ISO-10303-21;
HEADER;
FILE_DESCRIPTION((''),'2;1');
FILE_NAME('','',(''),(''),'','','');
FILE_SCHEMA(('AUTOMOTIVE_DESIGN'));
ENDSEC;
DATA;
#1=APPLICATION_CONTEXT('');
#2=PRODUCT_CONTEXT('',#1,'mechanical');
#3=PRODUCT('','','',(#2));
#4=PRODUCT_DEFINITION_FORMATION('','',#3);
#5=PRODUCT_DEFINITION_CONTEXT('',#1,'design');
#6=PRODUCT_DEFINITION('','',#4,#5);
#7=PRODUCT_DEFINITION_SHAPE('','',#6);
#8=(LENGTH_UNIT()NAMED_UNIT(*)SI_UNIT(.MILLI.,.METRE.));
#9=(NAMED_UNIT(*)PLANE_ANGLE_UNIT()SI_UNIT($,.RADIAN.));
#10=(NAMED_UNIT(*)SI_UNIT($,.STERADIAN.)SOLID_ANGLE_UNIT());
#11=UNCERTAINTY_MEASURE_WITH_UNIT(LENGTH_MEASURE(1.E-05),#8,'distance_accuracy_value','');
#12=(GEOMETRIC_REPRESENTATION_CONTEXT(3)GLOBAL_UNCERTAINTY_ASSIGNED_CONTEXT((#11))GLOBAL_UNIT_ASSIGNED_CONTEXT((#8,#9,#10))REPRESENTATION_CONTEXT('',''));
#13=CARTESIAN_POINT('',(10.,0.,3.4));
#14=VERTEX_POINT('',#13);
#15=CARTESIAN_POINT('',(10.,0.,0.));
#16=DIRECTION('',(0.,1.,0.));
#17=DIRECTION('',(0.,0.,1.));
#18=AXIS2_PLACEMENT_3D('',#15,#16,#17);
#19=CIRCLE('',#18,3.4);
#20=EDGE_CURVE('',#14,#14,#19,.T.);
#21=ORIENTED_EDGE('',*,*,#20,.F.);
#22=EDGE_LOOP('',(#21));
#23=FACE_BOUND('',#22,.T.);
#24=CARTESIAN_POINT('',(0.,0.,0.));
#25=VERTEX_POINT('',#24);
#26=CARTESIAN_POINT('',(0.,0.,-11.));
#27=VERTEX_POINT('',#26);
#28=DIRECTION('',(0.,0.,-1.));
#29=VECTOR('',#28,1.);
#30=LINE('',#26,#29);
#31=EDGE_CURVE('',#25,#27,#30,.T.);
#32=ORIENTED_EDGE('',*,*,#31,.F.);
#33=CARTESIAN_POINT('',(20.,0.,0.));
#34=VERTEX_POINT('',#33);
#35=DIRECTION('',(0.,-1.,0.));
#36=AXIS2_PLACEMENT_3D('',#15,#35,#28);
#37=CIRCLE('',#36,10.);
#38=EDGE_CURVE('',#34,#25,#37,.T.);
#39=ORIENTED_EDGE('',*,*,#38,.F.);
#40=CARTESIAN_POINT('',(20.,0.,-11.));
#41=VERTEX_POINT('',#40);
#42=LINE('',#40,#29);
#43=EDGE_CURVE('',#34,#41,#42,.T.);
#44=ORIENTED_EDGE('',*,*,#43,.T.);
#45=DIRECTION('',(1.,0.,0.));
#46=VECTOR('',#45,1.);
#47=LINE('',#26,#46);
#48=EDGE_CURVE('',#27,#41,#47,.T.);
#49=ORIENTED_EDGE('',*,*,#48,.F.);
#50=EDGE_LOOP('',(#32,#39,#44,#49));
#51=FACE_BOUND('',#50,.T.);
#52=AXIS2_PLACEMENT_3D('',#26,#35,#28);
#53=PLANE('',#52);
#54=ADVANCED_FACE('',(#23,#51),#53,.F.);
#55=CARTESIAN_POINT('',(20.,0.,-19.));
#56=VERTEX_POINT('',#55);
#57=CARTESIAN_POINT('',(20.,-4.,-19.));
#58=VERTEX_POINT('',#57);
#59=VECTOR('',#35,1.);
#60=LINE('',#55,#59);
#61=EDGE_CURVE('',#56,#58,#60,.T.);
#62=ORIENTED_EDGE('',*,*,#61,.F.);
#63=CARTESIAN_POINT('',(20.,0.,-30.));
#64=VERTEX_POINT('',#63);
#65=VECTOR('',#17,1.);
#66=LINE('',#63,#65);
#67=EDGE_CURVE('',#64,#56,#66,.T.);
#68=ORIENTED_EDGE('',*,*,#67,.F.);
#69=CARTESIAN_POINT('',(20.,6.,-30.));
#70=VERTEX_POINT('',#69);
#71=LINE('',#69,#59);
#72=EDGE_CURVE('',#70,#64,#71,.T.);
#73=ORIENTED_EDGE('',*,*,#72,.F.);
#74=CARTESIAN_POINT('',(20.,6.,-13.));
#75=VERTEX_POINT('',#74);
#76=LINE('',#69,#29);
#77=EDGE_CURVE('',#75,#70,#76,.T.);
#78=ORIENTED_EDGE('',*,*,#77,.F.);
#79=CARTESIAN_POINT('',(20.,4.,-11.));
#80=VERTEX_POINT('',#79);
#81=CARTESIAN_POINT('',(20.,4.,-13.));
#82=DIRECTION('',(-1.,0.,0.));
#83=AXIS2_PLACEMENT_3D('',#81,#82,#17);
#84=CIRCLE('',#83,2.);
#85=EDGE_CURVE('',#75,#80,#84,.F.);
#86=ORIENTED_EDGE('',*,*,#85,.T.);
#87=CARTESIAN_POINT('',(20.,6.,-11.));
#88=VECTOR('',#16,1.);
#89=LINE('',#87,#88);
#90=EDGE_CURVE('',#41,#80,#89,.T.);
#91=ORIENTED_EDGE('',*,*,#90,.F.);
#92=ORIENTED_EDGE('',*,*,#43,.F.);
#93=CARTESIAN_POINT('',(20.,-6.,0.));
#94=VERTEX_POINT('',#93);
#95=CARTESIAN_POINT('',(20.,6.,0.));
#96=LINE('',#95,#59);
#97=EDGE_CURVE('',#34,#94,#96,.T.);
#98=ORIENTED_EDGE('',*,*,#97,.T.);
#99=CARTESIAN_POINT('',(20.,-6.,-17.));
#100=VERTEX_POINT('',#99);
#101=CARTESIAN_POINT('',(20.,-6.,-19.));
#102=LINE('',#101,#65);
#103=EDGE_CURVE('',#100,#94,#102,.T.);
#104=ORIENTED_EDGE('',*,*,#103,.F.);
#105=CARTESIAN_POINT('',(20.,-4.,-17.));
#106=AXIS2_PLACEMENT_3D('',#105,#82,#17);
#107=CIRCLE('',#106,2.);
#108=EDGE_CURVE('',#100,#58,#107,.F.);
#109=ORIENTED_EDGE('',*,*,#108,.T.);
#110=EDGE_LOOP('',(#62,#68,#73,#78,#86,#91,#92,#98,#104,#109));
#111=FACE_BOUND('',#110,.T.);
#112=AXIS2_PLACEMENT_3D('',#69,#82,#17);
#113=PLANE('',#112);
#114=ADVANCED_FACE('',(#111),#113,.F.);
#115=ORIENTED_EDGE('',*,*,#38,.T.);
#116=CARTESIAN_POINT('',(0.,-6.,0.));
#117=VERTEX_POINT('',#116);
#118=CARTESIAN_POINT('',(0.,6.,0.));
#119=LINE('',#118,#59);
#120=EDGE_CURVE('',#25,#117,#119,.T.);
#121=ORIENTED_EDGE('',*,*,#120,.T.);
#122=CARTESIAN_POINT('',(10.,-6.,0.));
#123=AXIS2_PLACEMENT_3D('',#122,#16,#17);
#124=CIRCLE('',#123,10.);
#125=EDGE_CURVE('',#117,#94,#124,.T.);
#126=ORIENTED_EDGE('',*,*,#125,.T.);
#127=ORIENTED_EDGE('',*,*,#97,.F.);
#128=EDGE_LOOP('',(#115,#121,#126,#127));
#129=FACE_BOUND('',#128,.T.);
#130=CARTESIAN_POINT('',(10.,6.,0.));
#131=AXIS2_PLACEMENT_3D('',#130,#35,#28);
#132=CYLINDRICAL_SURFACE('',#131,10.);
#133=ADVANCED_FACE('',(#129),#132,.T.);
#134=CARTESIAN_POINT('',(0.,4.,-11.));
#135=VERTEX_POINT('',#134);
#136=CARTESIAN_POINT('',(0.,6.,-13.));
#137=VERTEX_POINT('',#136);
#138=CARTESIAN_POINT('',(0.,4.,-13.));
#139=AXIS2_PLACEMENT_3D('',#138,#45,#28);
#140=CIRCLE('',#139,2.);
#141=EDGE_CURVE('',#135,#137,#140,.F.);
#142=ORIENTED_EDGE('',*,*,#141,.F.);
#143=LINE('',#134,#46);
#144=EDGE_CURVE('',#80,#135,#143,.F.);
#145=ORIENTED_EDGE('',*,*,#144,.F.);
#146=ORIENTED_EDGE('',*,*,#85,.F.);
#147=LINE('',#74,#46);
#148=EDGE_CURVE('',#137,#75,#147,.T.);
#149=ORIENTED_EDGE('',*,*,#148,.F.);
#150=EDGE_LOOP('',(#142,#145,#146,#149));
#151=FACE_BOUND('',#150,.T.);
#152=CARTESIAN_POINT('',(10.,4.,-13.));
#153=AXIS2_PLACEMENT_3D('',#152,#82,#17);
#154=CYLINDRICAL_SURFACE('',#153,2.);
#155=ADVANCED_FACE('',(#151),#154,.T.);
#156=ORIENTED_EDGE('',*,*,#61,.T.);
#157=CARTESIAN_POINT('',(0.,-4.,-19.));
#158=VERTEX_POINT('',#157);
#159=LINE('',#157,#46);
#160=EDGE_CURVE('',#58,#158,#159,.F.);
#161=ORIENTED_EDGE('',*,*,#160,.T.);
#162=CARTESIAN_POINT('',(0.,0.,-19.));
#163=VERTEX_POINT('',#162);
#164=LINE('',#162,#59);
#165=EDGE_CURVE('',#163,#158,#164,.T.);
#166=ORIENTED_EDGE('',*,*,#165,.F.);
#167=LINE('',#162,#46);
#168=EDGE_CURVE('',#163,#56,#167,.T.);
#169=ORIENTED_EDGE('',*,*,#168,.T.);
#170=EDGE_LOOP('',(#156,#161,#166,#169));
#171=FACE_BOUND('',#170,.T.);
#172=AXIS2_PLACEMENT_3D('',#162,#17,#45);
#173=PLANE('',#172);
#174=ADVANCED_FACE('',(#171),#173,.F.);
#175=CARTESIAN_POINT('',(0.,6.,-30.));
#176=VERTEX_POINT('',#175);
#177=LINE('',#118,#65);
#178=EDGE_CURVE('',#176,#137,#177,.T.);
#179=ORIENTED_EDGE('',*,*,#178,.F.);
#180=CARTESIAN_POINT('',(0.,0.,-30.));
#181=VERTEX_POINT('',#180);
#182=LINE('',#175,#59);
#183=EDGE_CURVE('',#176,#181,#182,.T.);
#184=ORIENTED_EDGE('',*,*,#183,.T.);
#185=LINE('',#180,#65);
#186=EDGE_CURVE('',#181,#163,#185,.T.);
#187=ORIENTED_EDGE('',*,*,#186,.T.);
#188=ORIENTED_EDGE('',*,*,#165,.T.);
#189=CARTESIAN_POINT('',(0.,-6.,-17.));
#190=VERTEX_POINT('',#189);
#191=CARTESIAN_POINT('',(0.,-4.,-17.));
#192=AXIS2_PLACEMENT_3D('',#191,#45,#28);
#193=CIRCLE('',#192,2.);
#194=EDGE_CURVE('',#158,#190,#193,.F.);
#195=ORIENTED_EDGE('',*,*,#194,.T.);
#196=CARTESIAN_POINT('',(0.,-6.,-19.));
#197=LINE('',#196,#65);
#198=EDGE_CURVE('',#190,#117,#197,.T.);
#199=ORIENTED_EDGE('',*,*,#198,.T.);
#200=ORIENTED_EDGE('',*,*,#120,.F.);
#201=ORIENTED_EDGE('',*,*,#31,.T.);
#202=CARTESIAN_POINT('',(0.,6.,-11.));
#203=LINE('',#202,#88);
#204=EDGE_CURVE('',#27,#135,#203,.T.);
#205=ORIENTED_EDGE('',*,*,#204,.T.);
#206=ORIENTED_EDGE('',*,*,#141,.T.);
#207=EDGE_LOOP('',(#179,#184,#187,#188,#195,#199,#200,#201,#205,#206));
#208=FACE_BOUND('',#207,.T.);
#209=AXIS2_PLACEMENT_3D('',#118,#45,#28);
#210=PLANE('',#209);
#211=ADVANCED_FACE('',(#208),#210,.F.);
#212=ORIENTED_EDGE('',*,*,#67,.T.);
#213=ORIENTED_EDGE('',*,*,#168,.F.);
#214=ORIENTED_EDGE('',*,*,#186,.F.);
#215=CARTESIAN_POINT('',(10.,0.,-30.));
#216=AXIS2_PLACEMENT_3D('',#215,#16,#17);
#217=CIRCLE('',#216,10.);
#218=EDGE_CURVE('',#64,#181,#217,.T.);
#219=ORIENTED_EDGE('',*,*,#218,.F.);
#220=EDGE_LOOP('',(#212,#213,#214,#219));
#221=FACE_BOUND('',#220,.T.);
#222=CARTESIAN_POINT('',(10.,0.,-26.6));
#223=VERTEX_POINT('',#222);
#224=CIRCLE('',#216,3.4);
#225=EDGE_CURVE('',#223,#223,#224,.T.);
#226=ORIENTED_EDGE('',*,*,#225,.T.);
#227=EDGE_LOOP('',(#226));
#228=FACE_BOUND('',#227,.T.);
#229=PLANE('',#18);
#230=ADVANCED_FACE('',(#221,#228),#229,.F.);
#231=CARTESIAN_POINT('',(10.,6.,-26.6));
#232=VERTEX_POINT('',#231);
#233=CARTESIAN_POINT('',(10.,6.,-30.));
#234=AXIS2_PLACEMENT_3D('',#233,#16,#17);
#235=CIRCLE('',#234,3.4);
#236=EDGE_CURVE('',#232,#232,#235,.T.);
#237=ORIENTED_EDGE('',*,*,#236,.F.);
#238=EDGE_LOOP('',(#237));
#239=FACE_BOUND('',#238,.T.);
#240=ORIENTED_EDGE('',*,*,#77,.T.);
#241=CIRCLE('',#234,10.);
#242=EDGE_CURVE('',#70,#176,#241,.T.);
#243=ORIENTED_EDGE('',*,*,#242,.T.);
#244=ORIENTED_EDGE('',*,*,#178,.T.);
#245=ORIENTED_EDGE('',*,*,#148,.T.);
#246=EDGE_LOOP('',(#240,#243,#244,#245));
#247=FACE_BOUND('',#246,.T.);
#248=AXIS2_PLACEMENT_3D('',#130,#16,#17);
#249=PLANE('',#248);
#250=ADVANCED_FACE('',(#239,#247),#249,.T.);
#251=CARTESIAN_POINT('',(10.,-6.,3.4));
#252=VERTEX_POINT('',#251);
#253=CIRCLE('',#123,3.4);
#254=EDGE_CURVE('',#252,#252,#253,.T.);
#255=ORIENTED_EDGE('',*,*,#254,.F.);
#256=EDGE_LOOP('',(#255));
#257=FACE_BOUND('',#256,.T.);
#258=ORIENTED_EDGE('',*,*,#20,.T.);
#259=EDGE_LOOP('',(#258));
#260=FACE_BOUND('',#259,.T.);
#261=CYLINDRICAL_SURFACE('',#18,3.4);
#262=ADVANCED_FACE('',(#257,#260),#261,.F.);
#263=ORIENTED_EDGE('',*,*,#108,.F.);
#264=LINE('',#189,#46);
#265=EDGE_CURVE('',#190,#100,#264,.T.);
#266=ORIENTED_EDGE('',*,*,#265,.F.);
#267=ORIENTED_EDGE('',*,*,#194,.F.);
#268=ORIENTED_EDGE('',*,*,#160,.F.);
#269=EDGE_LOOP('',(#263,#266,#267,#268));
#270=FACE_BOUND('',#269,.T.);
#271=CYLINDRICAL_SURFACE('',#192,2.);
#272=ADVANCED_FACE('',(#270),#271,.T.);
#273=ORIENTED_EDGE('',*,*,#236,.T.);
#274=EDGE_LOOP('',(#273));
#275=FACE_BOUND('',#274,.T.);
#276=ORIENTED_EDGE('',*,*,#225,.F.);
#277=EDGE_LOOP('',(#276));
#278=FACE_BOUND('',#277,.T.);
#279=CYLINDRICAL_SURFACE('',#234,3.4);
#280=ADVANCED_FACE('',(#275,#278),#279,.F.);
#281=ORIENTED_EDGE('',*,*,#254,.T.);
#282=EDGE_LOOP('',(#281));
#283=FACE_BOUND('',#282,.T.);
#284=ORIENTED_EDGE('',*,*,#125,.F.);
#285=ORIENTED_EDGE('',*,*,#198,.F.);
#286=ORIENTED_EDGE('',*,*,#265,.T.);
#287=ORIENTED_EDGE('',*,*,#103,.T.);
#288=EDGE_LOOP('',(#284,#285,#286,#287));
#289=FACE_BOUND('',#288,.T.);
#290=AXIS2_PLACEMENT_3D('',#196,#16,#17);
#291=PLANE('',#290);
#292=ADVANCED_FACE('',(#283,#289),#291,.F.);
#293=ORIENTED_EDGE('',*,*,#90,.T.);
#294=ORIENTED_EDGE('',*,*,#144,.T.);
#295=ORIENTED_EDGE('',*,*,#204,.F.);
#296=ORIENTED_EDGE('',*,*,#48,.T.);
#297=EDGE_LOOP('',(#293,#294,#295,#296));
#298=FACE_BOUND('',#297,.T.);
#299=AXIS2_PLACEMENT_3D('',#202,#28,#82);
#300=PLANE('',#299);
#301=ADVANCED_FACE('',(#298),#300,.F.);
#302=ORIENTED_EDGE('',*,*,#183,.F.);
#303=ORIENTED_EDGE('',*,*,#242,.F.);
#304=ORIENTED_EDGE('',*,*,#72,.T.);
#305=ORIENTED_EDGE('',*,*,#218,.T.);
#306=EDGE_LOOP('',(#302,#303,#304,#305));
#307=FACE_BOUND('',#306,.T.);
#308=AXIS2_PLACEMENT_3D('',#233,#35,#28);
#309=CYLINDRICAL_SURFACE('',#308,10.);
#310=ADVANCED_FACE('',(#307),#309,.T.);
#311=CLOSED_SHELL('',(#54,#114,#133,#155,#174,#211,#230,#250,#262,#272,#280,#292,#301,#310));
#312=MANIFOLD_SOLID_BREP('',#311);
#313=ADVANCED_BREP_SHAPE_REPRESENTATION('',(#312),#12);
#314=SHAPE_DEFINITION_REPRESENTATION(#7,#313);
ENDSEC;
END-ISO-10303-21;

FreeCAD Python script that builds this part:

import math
import FreeCAD as App
import Part
import Sketcher
Q = App.Units.Quantity


def edges_at(feature, points):
    """Names of the edges that pass closest to the given points."""
    edges = feature.Shape.Edges
    near = lambda p: min(range(len(edges)), key=lambda i: edges[i].distToShape(Part.Vertex(*p))[0])
    return sorted({f"Edge{near(p) + 1}" for p in points})

doc = App.newDocument("Part")
body = doc.addObject("PartDesign::Body", "Body")

sketch1 = body.newObject("Sketcher::SketchObject", "Sketch")
sketch1.AttachmentSupport = (doc.getObject("XZ_Plane"), [""])
sketch1.MapMode = "FlatFace"
sketch1.addGeometry([
    Part.LineSegment(App.Vector(0, -30, 0), App.Vector(0, 0, 0)),
    Part.ArcOfCircle(Part.Circle(App.Vector(10, 0, 0), App.Vector(0, 0, 1), 10), math.radians(0), math.radians(180)),
    Part.LineSegment(App.Vector(20, 0, 0), App.Vector(20, -30, 0)),
    Part.ArcOfCircle(Part.Circle(App.Vector(10, -30, 0), App.Vector(0, 0, 1), 10), math.radians(180), math.radians(360)),
], False)
sketch1.addConstraint([
    Sketcher.Constraint("Tangent", 0, 2, 1, 2),
    Sketcher.Constraint("Tangent", 1, 1, 2, 1),
    Sketcher.Constraint("Tangent", 2, 2, 3, 2),
    Sketcher.Constraint("Tangent", 3, 1, 0, 1),
    Sketcher.Constraint("Vertical", 0),
    Sketcher.Constraint("Vertical", 2),
    Sketcher.Constraint("Coincident", 0, 2, -1, 1),
    Sketcher.Constraint("Radius", 1, Q("10 mm")),
    Sketcher.Constraint("DistanceY", 0, 1, 0, 2, Q("30 mm")),
])
pad1 = body.newObject("PartDesign::Pad", "Pad")
pad1.Profile = sketch1
pad1.Length = 6
pad1.Reversed = True

sketch2 = body.newObject("Sketcher::SketchObject", "Sketch001")
sketch2.AttachmentSupport = (doc.getObject("XZ_Plane"), [""])
sketch2.MapMode = "FlatFace"
sketch2.addGeometry([
    Part.LineSegment(App.Vector(0, -30, 0), App.Vector(20, -30, 0)),
    Part.LineSegment(App.Vector(20, -30, 0), App.Vector(20, 0, 0)),
    Part.ArcOfCircle(Part.Circle(App.Vector(10, 0, 0), App.Vector(0, 0, 1), 10), math.radians(0), math.radians(180)),
    Part.LineSegment(App.Vector(0, 0, 0), App.Vector(0, -30, 0)),
], False)
sketch2.addConstraint([
    Sketcher.Constraint("Coincident", 0, 2, 1, 1),
    Sketcher.Constraint("Tangent", 1, 2, 2, 1),
    Sketcher.Constraint("Tangent", 2, 2, 3, 1),
    Sketcher.Constraint("Coincident", 3, 2, 0, 1),
    Sketcher.Constraint("Horizontal", 0),
    Sketcher.Constraint("Vertical", 1),
    Sketcher.Constraint("Vertical", 3),
    Sketcher.Constraint("Coincident", 2, 2, -1, 1),
    Sketcher.Constraint("Radius", 2, Q("10 mm")),
    Sketcher.Constraint("DistanceY", 1, 1, 1, 2, Q("30 mm")),
])
pad2 = body.newObject("PartDesign::Pad", "Pad001")
pad2.Profile = sketch2
pad2.Length = 12

sketch3 = body.newObject("Sketcher::SketchObject", "Sketch002")
sketch3.AttachmentSupport = (doc.getObject("YZ_Plane"), [""])
sketch3.MapMode = "FlatFace"
sketch3.AttachmentOffset = App.Placement(App.Vector(0, 0, 20), App.Rotation())
sketch3.addGeometry([
    Part.LineSegment(App.Vector(6, 10, 0), App.Vector(0, 10, 0)),
    Part.LineSegment(App.Vector(0, 10, 0), App.Vector(0, -11, 0)),
    Part.LineSegment(App.Vector(0, -11, 0), App.Vector(6, -11, 0)),
    Part.LineSegment(App.Vector(6, -11, 0), App.Vector(6, 10, 0)),
    Part.LineSegment(App.Vector(0, -30, 0), App.Vector(0, -19, 0)),
    Part.LineSegment(App.Vector(0, -19, 0), App.Vector(-6, -19, 0)),
    Part.LineSegment(App.Vector(-6, -19, 0), App.Vector(-6, 10, 0)),
    Part.LineSegment(App.Vector(-6, 10, 0), App.Vector(-12, 10, 0)),
    Part.LineSegment(App.Vector(-12, 10, 0), App.Vector(-12, -30, 0)),
    Part.LineSegment(App.Vector(-12, -30, 0), App.Vector(0, -30, 0)),
], False)
sketch3.addConstraint([
    Sketcher.Constraint("Coincident", 0, 2, 1, 1),
    Sketcher.Constraint("Coincident", 1, 2, 2, 1),
    Sketcher.Constraint("Coincident", 2, 2, 3, 1),
    Sketcher.Constraint("Coincident", 3, 2, 0, 1),
    Sketcher.Constraint("Coincident", 4, 2, 5, 1),
    Sketcher.Constraint("Coincident", 5, 2, 6, 1),
    Sketcher.Constraint("Coincident", 6, 2, 7, 1),
    Sketcher.Constraint("Coincident", 7, 2, 8, 1),
    Sketcher.Constraint("Coincident", 8, 2, 9, 1),
    Sketcher.Constraint("Coincident", 9, 2, 4, 1),
    Sketcher.Constraint("Horizontal", 0),
    Sketcher.Constraint("Vertical", 1),
    Sketcher.Constraint("Horizontal", 2),
    Sketcher.Constraint("Vertical", 3),
    Sketcher.Constraint("Vertical", 4),
    Sketcher.Constraint("Horizontal", 5),
    Sketcher.Constraint("Vertical", 6),
    Sketcher.Constraint("Horizontal", 7),
    Sketcher.Constraint("Vertical", 8),
    Sketcher.Constraint("Horizontal", 9),
    Sketcher.Constraint("Symmetric", 3, 2, 6, 2, -2),
    Sketcher.Constraint("PointOnObject", 0, 2, -2),
    Sketcher.Constraint("PointOnObject", 4, 2, -2),
    Sketcher.Constraint("Equal", 5, 7),
    Sketcher.Constraint("DistanceX", 0, 2, 0, 1, Q("6 mm")),
    Sketcher.Constraint("DistanceY", 1, 2, 1, 1, Q("21 mm")),
    Sketcher.Constraint("DistanceY", 4, 1, 4, 2, Q("11 mm")),
    Sketcher.Constraint("DistanceY", 6, 1, 6, 2, Q("29 mm")),
    Sketcher.Constraint("DistanceY", -1, 1, 0, 2, Q("10 mm")),
])
pocket1 = body.newObject("PartDesign::Pocket", "Pocket")
pocket1.Profile = sketch3
pocket1.Type = "ThroughAll"

sketch4 = body.newObject("Sketcher::SketchObject", "Sketch003")
sketch4.AttachmentSupport = (doc.getObject("XZ_Plane"), [""])
sketch4.MapMode = "FlatFace"
sketch4.AttachmentOffset = App.Placement(App.Vector(0, 0, -6), App.Rotation())
sketch4.addGeometry(Part.Circle(App.Vector(10, -30, 0), App.Vector(0, 0, 1), 3.4), False)
sketch4.addConstraint([
    Sketcher.Constraint("Diameter", 0, Q("6.8 mm")),
    Sketcher.Constraint("DistanceX", -1, 1, 0, 3, Q("10 mm")),
    Sketcher.Constraint("DistanceY", 0, 3, -1, 1, Q("30 mm")),
])
doc.recompute()
hole = body.newObject("PartDesign::Hole", "Hole")
hole.Profile = sketch4
hole.ThreadType = "None"
hole.Diameter = 6.8
hole.DepthType = "ThroughAll"
hole.Reversed = True

sketch5 = body.newObject("Sketcher::SketchObject", "Sketch004")
sketch5.AttachmentSupport = (doc.getObject("XZ_Plane"), [""])
sketch5.MapMode = "FlatFace"
sketch5.addGeometry(Part.Circle(App.Vector(10, 0, 0), App.Vector(0, 0, 1), 3.4), False)
sketch5.addConstraint([
    Sketcher.Constraint("PointOnObject", 0, 3, -1),
    Sketcher.Constraint("Diameter", 0, Q("6.8 mm")),
    Sketcher.Constraint("DistanceX", -1, 1, 0, 3, Q("10 mm")),
])
doc.recompute()
hole2 = body.newObject("PartDesign::Hole", "Hole001")
hole2.Profile = sketch5
hole2.ThreadType = "None"
hole2.Diameter = 6.8
hole2.DepthType = "ThroughAll"
hole2.Reversed = True
doc.recompute()

fillet = body.newObject("PartDesign::Fillet", "Fillet")
fillet.Base = (hole2, edges_at(hole2, [(10, -6, -19), (10, 6, -11)]))
fillet.Radius = 2

doc.recompute()
